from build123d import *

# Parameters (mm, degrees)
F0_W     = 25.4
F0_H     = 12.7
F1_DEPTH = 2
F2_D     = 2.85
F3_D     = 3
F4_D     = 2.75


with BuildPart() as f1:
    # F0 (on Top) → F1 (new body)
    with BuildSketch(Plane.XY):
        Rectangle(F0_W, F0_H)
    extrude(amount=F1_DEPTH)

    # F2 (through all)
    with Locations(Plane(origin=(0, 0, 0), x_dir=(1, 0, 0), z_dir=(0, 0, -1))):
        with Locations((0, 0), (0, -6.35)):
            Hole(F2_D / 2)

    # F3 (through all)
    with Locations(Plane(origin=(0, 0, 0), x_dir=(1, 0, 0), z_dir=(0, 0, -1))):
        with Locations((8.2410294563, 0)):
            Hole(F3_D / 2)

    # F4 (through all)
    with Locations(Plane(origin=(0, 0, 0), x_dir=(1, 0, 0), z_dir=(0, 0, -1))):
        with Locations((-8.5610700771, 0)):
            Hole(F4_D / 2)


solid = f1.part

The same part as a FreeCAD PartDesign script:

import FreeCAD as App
import Part
import Sketcher

V = App.Vector
Q = App.Units.Quantity


def add_polygon(sketch, points):
    """Adds a closed chain of lines whose ends are joined by coincident constraints."""
    first, n = sketch.GeometryCount, len(points)
    for a, b in zip(points, points[1:] + points[:1]):
        sketch.addGeometry(Part.LineSegment(App.Vector(*a, 0), App.Vector(*b, 0)), False)
    for i in range(n):
        sketch.addConstraint(Sketcher.Constraint("Coincident", first + i, 2, first + (i + 1) % n, 1))

doc = App.newDocument("Part")
body = doc.addObject("PartDesign::Body", "Body")

sketch1 = body.newObject("Sketcher::SketchObject", "Sketch")
sketch1.AttachmentSupport = (doc.getObject("XY_Plane"), [""])
sketch1.MapMode = "FlatFace"
add_polygon(sketch1, [(-12.7, 6.35), (-12.7, -6.35), (12.7, -6.35), (12.7, 6.35)])
sketch1.addConstraint(Sketcher.Constraint("Vertical", 0))
sketch1.addConstraint(Sketcher.Constraint("Horizontal", 1))
sketch1.addConstraint(Sketcher.Constraint("Vertical", 2))
sketch1.addConstraint(Sketcher.Constraint("Horizontal", 3))
sketch1.addConstraint(Sketcher.Constraint("Symmetric", 0, 2, 2, 2, -1, 1))
sketch1.addConstraint(Sketcher.Constraint("DistanceX", 1, 1, 1, 2, Q("25.4 mm")))
sketch1.addConstraint(Sketcher.Constraint("DistanceY", 0, 2, 0, 1, Q("12.7 mm")))
pad1 = body.newObject("PartDesign::Pad", "Pad")
pad1.Profile = sketch1
pad1.Length = 2

sketch2 = body.newObject("Sketcher::SketchObject", "Sketch001")
sketch2.AttachmentSupport = (doc.getObject("XY_Plane"), [""])
sketch2.MapMode = "FlatFace"
sketch2.addGeometry(Part.Circle(V(0, 0, 0), V(0, 0, 1), 1.425), False)
sketch2.addGeometry(Part.Circle(V(0, 6.35, 0), V(0, 0, 1), 1.425), False)
sketch2.addConstraint(Sketcher.Constraint("Coincident", 0, 3, -1, 1))
sketch2.addConstraint(Sketcher.Constraint("Equal", 0, 1))
sketch2.addConstraint(Sketcher.Constraint("PointOnObject", 1, 3, -2))
sketch2.addConstraint(Sketcher.Constraint("Diameter", 0, Q("2.85 mm")))
sketch2.addConstraint(Sketcher.Constraint("DistanceY", -1, 1, 1, 3, Q("6.35 mm")))
doc.recompute()
hole = body.newObject("PartDesign::Hole", "Hole")
hole.Profile = sketch2
hole.ThreadType = "None"
hole.Diameter = 2.85
hole.DepthType = "ThroughAll"
hole.Reversed = True

sketch3 = body.newObject("Sketcher::SketchObject", "Sketch002")
sketch3.AttachmentSupport = (doc.getObject("XY_Plane"), [""])
sketch3.MapMode = "FlatFace"
sketch3.addGeometry(Part.Circle(V(8.241029, 0, 0), V(0, 0, 1), 1.5), False)
sketch3.addConstraint(Sketcher.Constraint("PointOnObject", 0, 3, -1))
sketch3.addConstraint(Sketcher.Constraint("Diameter", 0, Q("3 mm")))
sketch3.addConstraint(Sketcher.Constraint("DistanceX", -1, 1, 0, 3, Q("8.241029 mm")))
doc.recompute()
hole2 = body.newObject("PartDesign::Hole", "Hole001")
hole2.Profile = sketch3
hole2.ThreadType = "None"
hole2.Diameter = 3
hole2.DepthType = "ThroughAll"
hole2.Reversed = True

sketch4 = body.newObject("Sketcher::SketchObject", "Sketch003")
sketch4.AttachmentSupport = (doc.getObject("XY_Plane"), [""])
sketch4.MapMode = "FlatFace"
sketch4.addGeometry(Part.Circle(V(-8.56107, 0, 0), V(0, 0, 1), 1.375), False)
sketch4.addConstraint(Sketcher.Constraint("PointOnObject", 0, 3, -1))
sketch4.addConstraint(Sketcher.Constraint("Diameter", 0, Q("2.75 mm")))
sketch4.addConstraint(Sketcher.Constraint("DistanceX", 0, 3, -1, 1, Q("8.56107 mm")))
doc.recompute()
hole3 = body.newObject("PartDesign::Hole", "Hole002")
hole3.Profile = sketch4
hole3.ThreadType = "None"
hole3.Diameter = 2.75
hole3.DepthType = "ThroughAll"
hole3.Reversed = True

doc.recompute()
